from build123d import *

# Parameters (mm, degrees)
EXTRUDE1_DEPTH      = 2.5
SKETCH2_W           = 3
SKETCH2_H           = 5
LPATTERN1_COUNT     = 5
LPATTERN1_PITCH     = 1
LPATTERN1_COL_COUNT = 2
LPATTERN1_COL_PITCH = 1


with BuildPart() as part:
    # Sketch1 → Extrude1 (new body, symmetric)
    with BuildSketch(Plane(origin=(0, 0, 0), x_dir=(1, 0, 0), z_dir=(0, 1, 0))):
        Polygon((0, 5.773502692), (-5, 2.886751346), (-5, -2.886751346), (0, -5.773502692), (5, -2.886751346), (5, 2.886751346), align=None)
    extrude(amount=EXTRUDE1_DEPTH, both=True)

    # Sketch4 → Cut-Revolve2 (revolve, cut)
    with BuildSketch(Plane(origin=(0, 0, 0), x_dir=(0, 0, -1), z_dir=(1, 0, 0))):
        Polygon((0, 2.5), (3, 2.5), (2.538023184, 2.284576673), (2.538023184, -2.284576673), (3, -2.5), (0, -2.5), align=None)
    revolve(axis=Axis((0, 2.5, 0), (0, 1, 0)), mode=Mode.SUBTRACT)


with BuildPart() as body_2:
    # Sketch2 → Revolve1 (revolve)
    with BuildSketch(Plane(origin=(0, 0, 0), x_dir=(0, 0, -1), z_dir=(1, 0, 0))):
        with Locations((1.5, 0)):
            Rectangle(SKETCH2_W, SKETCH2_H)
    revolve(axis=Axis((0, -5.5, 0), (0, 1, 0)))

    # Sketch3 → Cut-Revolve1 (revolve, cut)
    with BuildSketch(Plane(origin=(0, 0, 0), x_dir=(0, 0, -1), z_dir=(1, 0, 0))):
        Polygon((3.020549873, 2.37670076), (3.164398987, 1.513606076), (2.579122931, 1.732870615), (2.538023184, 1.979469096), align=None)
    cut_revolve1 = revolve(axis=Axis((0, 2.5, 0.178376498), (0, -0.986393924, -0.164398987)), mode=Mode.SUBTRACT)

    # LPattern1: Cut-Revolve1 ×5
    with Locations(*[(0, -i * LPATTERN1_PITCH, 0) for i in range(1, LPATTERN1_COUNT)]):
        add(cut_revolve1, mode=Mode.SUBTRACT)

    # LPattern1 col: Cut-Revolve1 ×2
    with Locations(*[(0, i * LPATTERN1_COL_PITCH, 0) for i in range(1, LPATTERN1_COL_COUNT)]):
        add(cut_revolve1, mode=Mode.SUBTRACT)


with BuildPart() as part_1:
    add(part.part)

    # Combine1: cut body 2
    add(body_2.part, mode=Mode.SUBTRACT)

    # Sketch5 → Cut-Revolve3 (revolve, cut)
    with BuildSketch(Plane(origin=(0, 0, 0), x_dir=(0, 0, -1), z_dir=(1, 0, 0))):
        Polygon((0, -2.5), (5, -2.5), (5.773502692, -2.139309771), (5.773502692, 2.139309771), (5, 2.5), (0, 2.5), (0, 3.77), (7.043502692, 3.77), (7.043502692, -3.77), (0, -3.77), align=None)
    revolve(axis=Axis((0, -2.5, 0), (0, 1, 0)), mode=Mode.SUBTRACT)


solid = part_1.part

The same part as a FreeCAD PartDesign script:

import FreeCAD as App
import Part
import Sketcher
Q = App.Units.Quantity


def add_polygon(sketch, points):
    """Adds a closed chain of lines whose ends are joined by coincident constraints."""
    first, n = sketch.GeometryCount, len(points)
    for a, b in zip(points, points[1:] + points[:1]):
        sketch.addGeometry(Part.LineSegment(App.Vector(*a, 0), App.Vector(*b, 0)), False)
    for i in range(n):
        sketch.addConstraint(Sketcher.Constraint("Coincident", first + i, 2, first + (i + 1) % n, 1))

doc = App.newDocument("Part")
body = doc.addObject("PartDesign::Body", "Body")

# Sketch on XZ plane
sketch1 = body.newObject("Sketcher::SketchObject", "Sketch")
sketch1.AttachmentSupport = (doc.getObject("XZ_Plane"), [""])
sketch1.MapMode = "FlatFace"
add_polygon(sketch1, [(0, -5.773503), (-5, -2.886751), (-5, 2.886751), (0, 5.773503), (5, 2.886751), (5, -2.886751)])  # lines 0-5
sketch1.addConstraint(Sketcher.Constraint("Vertical", 1))
sketch1.addConstraint(Sketcher.Constraint("Vertical", 4))
sketch1.addConstraint(Sketcher.Constraint("Symmetric", 0, 2, 3, 2, -1, 1))
sketch1.addConstraint(Sketcher.Constraint("Symmetric", 2, 2, 5, 2, -1, 1))
sketch1.addConstraint(Sketcher.Constraint("PointOnObject", 2, 2, -2))
sketch1.addConstraint(Sketcher.Constraint("Parallel", 2, 5))
sketch1.addConstraint(Sketcher.Constraint("Horizontal", 1, 2, 3, 2))
sketch1.addConstraint(Sketcher.Constraint("Angle", 0, Q("150 deg")))
sketch1.addConstraint(Sketcher.Constraint("DistanceX", 0, 2, -1, 1, Q("5 mm")))
sketch1.addConstraint(Sketcher.Constraint("DistanceY", 1, 1, 1, 2, Q("5.773503 mm")))
pad1 = body.newObject("PartDesign::Pad", "Pad")
pad1.Profile = sketch1
pad1.Length = 5
pad1.Midplane = True

# Sketch on YZ plane
sketch2 = body.newObject("Sketcher::SketchObject", "Sketch001")
sketch2.AttachmentSupport = (doc.getObject("YZ_Plane"), [""])
sketch2.MapMode = "FlatFace"
add_polygon(sketch2, [(2.5, -3), (2.5, 0), (-2.5, 0), (-2.5, -3), (-2.284577, -2.538023), (2.284577, -2.538023)])  # lines 0-5
sketch2.addConstraint(Sketcher.Constraint("Vertical", 0))
sketch2.addConstraint(Sketcher.Constraint("Horizontal", 1))
sketch2.addConstraint(Sketcher.Constraint("Vertical", 2))
sketch2.addConstraint(Sketcher.Constraint("Horizontal", 4))
sketch2.addConstraint(Sketcher.Constraint("Symmetric", 0, 2, 1, 2, -1, 1))
sketch2.addConstraint(Sketcher.Constraint("Horizontal", 2, 2, 5, 2))
sketch2.addConstraint(Sketcher.Constraint("Equal", 3, 5))
sketch2.addConstraint(Sketcher.Constraint("DistanceX", 1, 2, 1, 1, Q("5 mm")))
sketch2.addConstraint(Sketcher.Constraint("DistanceY", 0, 1, 0, 2, Q("3 mm")))
sketch2.addConstraint(Sketcher.Constraint("Angle", 3, Q("65 deg")))
sketch2.addConstraint(Sketcher.Constraint("DistanceX", 4, 1, 4, 2, Q("4.569153 mm")))
groove = body.newObject("PartDesign::Groove", "Groove")
groove.Profile = sketch2
groove.ReferenceAxis = (sketch2, ["H_Axis"])
groove.Angle = 360
body2 = doc.addObject("PartDesign::Body", "Body001")

# Sketch on YZ plane
sketch3 = body2.newObject("Sketcher::SketchObject", "Sketch002")
sketch3.AttachmentSupport = (doc.getObject("YZ_Plane001"), [""])
sketch3.MapMode = "FlatFace"
add_polygon(sketch3, [(2.5, 0), (-2.5, 0), (-2.5, -3), (2.5, -3)])  # lines 0-3
sketch3.addConstraint(Sketcher.Constraint("Horizontal", 0))
sketch3.addConstraint(Sketcher.Constraint("Vertical", 1))
sketch3.addConstraint(Sketcher.Constraint("Horizontal", 2))
sketch3.addConstraint(Sketcher.Constraint("Vertical", 3))
sketch3.addConstraint(Sketcher.Constraint("Symmetric", 0, 2, 3, 2, -1, 1))
sketch3.addConstraint(Sketcher.Constraint("DistanceX", 0, 2, 0, 1, Q("5 mm")))
sketch3.addConstraint(Sketcher.Constraint("DistanceY", 1, 2, 1, 1, Q("3 mm")))
revolution = body2.newObject("PartDesign::Revolution", "Revolution")
revolution.Profile = sketch3
revolution.ReferenceAxis = (sketch3, ["H_Axis"])
revolution.Angle = 360

# Sketch on YZ plane
sketch4 = body2.newObject("Sketcher::SketchObject", "Sketch003")
sketch4.AttachmentSupport = (doc.getObject("YZ_Plane001"), [""])
sketch4.MapMode = "FlatFace"
add_polygon(sketch4, [(1.513606, -3.164399), (2.376701, -3.02055), (1.979469, -2.538023), (1.732871, -2.579123)])  # lines 0-3
sketch4.addGeometry(Part.LineSegment(App.Vector(1.861288, 0.071925, 0), App.Vector(0.998194, -0.071925, 0)), True)  # axis
sketch4.addConstraint(Sketcher.Constraint("Parallel", 0, 2))
sketch4.addConstraint(Sketcher.Constraint("Parallel", 2, 4))
sketch4.addConstraint(Sketcher.Constraint("Equal", 1, 3))
sketch4.addConstraint(Sketcher.Constraint("Equal", 0, 4))
sketch4.addConstraint(Sketcher.Constraint("Distance", 2, Q("0.25 mm")))
sketch4.addConstraint(Sketcher.Constraint("Distance", 0, Q("0.875 mm")))
sketch4.addConstraint(Sketcher.Constraint("Distance", 1, Q("0.625 mm")))
sketch4.addConstraint(Sketcher.Constraint("DistanceX", -1, 1, 0, 2, Q("2.376701 mm")))
sketch4.addConstraint(Sketcher.Constraint("DistanceY", 3, 2, -1, 1, Q("3.164399 mm")))
sketch4.addConstraint(Sketcher.Constraint("DistanceX", 2, 2, 1, 2, Q("0.246598 mm")))
sketch4.addConstraint(Sketcher.Constraint("DistanceY", 2, 2, 4, 2, Q("2.507198 mm")))
sketch4.addConstraint(Sketcher.Constraint("DistanceX", -1, 1, 4, 1, Q("1.861288 mm")))
groove2 = body2.newObject("PartDesign::Groove", "Groove001")
groove2.Profile = sketch4
groove2.ReferenceAxis = (sketch4, ["Axis0"])
groove2.Angle = 360
doc.recompute()

linearpattern = body2.newObject("PartDesign::LinearPattern", "LinearPattern")
linearpattern.Originals = [groove2]
linearpattern.Direction = (doc.getObject("Y_Axis001"), [""])
linearpattern.Mode = "offset"
linearpattern.Offset = 1
linearpattern.Occurrences = 5
linearpattern.Reversed = True
body2.Tip = linearpattern
doc.recompute()

linearpattern2 = body2.newObject("PartDesign::LinearPattern", "LinearPattern001")
linearpattern2.Originals = [groove2]
linearpattern2.Direction = (doc.getObject("Y_Axis001"), [""])
linearpattern2.Mode = "offset"
linearpattern2.Offset = 1
linearpattern2.Occurrences = 2
body2.Tip = linearpattern2
doc.recompute()

boolean = body.newObject("PartDesign::Boolean", "Boolean")
boolean.Type = "Cut"
boolean.addObjects([body2])

# Sketch on YZ plane
sketch5 = body.newObject("Sketcher::SketchObject", "Sketch004")
sketch5.AttachmentSupport = (doc.getObject("YZ_Plane"), [""])
sketch5.MapMode = "FlatFace"
add_polygon(sketch5, [(-2.5, -5), (-2.5, 0), (-3.77, 0), (-3.77, -7.043503), (3.77, -7.043503), (3.77, 0), (2.5, 0), (2.5, -5), (2.13931, -5.773503), (-2.13931, -5.773503)])  # lines 0-9
sketch5.addConstraint(Sketcher.Constraint("Vertical", 0))
sketch5.addConstraint(Sketcher.Constraint("Horizontal", 1))
sketch5.addConstraint(Sketcher.Constraint("Vertical", 2))
sketch5.addConstraint(Sketcher.Constraint("Horizontal", 3))
sketch5.addConstraint(Sketcher.Constraint("Vertical", 4))
sketch5.addConstraint(Sketcher.Constraint("Horizontal", 5))
sketch5.addConstraint(Sketcher.Constraint("Vertical", 6))
sketch5.addConstraint(Sketcher.Constraint("Horizontal", 8))
sketch5.addConstraint(Sketcher.Constraint("Symmetric", 1, 2, 4, 2, -1, 1))
sketch5.addConstraint(Sketcher.Constraint("Symmetric", 0, 2, 5, 2, -2))
sketch5.addConstraint(Sketcher.Constraint("Horizontal", 6, 2, 9, 2))
sketch5.addConstraint(Sketcher.Constraint("Equal", 7, 9))
sketch5.addConstraint(Sketcher.Constraint("DistanceY", 0, 1, 0, 2, Q("5 mm")))
sketch5.addConstraint(Sketcher.Constraint("Angle", 7, Q("-115 deg")))
sketch5.addConstraint(Sketcher.Constraint("DistanceX", 0, 2, 5, 2, Q("5 mm")))
sketch5.addConstraint(Sketcher.Constraint("DistanceX", 1, 2, 1, 1, Q("1.27 mm")))
sketch5.addConstraint(Sketcher.Constraint("DistanceY", 3, 2, 7, 2, Q("1.27 mm")))
sketch5.addConstraint(Sketcher.Constraint("DistanceX", 8, 2, 8, 1, Q("4.27862 mm")))
groove3 = body.newObject("PartDesign::Groove", "Groove002")
groove3.Profile = sketch5
groove3.ReferenceAxis = (sketch5, ["H_Axis"])
groove3.Angle = 360

doc.recompute()
